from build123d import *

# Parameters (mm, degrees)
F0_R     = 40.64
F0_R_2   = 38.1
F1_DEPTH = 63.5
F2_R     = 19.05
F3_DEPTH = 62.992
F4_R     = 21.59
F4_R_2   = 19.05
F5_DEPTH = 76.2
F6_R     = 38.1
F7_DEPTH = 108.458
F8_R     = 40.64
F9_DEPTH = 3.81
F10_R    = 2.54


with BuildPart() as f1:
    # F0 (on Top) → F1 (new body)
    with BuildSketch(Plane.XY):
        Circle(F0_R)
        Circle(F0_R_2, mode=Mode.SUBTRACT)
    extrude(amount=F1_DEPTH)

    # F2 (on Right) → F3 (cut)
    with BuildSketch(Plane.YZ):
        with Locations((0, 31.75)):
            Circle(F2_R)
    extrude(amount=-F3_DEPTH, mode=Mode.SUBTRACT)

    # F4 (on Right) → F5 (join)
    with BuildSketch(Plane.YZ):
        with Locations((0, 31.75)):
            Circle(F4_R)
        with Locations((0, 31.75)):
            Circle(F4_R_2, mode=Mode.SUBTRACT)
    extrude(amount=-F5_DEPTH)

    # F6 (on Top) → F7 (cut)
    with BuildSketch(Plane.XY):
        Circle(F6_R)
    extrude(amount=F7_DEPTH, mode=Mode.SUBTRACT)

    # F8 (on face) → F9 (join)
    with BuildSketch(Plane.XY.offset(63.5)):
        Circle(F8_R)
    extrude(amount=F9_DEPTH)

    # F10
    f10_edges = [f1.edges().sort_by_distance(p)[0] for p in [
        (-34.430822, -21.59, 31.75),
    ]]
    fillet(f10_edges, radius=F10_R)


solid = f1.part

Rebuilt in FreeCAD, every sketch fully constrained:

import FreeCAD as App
import Part
import Sketcher

V = App.Vector
Q = App.Units.Quantity


def edges_at(feature, points):
    """Names of the edges that pass closest to the given points."""
    edges = feature.Shape.Edges
    near = lambda p: min(range(len(edges)), key=lambda i: edges[i].distToShape(Part.Vertex(*p))[0])
    return sorted({f"Edge{near(p) + 1}" for p in points})

doc = App.newDocument("Part")
body = doc.addObject("PartDesign::Body", "Body")

# Sketch on XY plane
sketch1 = body.newObject("Sketcher::SketchObject", "Sketch")
sketch1.AttachmentSupport = (doc.getObject("XY_Plane"), [""])
sketch1.MapMode = "FlatFace"
sketch1.addGeometry([
    Part.Circle(V(0, 0, 0), V(0, 0, 1), 41),
    Part.Circle(V(0, 0, 0), V(0, 0, 1), 38),
], False)
sketch1.addConstraint([
    Sketcher.Constraint("Coincident", 0, 3, -1, 1),
    Sketcher.Constraint("Coincident", 1, 3, -1, 1),
    Sketcher.Constraint("Diameter", 1, Q("3 in")),
    Sketcher.Constraint("Diameter", 0, Q("3.2 in")),
])
pad1 = body.newObject("PartDesign::Pad", "Pad")
pad1.Profile = sketch1
pad1.Length = Q("2.5 in")

# Sketch on YZ plane
sketch2 = body.newObject("Sketcher::SketchObject", "Sketch001")
sketch2.AttachmentSupport = (doc.getObject("YZ_Plane"), [""])
sketch2.MapMode = "FlatFace"
sketch2.addGeometry(Part.Circle(V(0, 32, 0), V(0, 0, 1), 19), False)
sketch2.addConstraint([
    Sketcher.Constraint("PointOnObject", 0, 3, -2),
    Sketcher.Constraint("Diameter", 0, Q("1.5 in")),
    Sketcher.Constraint("DistanceY", -1, 1, 0, 3, Q("1.25 in")),
])
pocket1 = body.newObject("PartDesign::Pocket", "Pocket")
pocket1.Profile = sketch2
pocket1.Length = Q("2.48 in")

# Sketch on YZ plane
sketch3 = body.newObject("Sketcher::SketchObject", "Sketch002")
sketch3.AttachmentSupport = (doc.getObject("YZ_Plane"), [""])
sketch3.MapMode = "FlatFace"
sketch3.addGeometry([
    Part.Circle(V(0, 32, 0), V(0, 0, 1), 22),
    Part.Circle(V(0, 32, 0), V(0, 0, 1), 19),
], False)
sketch3.addConstraint([
    Sketcher.Constraint("Coincident", 1, 3, 0, 3),
    Sketcher.Constraint("PointOnObject", 0, 3, -2),
    Sketcher.Constraint("Diameter", 0, Q("1.7 in")),
    Sketcher.Constraint("Diameter", 1, Q("1.5 in")),
    Sketcher.Constraint("DistanceY", -1, 1, 0, 3, Q("1.25 in")),
])
pad2 = body.newObject("PartDesign::Pad", "Pad001")
pad2.Profile = sketch3
pad2.Length = Q("3 in")
pad2.Reversed = True

# Sketch on XY plane
sketch4 = body.newObject("Sketcher::SketchObject", "Sketch003")
sketch4.AttachmentSupport = (doc.getObject("XY_Plane"), [""])
sketch4.MapMode = "FlatFace"
sketch4.addGeometry(Part.Circle(V(0, 0, 0), V(0, 0, 1), 38), False)
sketch4.addConstraint([
    Sketcher.Constraint("Coincident", 0, 3, -1, 1),
    Sketcher.Constraint("Diameter", 0, Q("3 in")),
])
pocket2 = body.newObject("PartDesign::Pocket", "Pocket001")
pocket2.Profile = sketch4
pocket2.Length = Q("4.27 in")
pocket2.Reversed = True

# Sketch on XY plane
sketch5 = body.newObject("Sketcher::SketchObject", "Sketch004")
sketch5.AttachmentSupport = (doc.getObject("XY_Plane"), [""])
sketch5.MapMode = "FlatFace"
sketch5.AttachmentOffset = App.Placement(V(0, 0, 2.5 * 25.4), App.Rotation())
sketch5.addGeometry(Part.Circle(V(0, 0, 0), V(0, 0, 1), 41), False)
sketch5.addConstraint([
    Sketcher.Constraint("Coincident", 0, 3, -1, 1),
    Sketcher.Constraint("Diameter", 0, Q("3.2 in")),
])
pad3 = body.newObject("PartDesign::Pad", "Pad002")
pad3.Profile = sketch5
pad3.Length = Q("0.15 in")
doc.recompute()

fillet = body.newObject("PartDesign::Fillet", "Fillet")
fillet.Base = (pad3, edges_at(pad3, [(-34.431, -21.59, 31.75)]))
fillet.Radius = Q("0.1 in")

doc.recompute()
